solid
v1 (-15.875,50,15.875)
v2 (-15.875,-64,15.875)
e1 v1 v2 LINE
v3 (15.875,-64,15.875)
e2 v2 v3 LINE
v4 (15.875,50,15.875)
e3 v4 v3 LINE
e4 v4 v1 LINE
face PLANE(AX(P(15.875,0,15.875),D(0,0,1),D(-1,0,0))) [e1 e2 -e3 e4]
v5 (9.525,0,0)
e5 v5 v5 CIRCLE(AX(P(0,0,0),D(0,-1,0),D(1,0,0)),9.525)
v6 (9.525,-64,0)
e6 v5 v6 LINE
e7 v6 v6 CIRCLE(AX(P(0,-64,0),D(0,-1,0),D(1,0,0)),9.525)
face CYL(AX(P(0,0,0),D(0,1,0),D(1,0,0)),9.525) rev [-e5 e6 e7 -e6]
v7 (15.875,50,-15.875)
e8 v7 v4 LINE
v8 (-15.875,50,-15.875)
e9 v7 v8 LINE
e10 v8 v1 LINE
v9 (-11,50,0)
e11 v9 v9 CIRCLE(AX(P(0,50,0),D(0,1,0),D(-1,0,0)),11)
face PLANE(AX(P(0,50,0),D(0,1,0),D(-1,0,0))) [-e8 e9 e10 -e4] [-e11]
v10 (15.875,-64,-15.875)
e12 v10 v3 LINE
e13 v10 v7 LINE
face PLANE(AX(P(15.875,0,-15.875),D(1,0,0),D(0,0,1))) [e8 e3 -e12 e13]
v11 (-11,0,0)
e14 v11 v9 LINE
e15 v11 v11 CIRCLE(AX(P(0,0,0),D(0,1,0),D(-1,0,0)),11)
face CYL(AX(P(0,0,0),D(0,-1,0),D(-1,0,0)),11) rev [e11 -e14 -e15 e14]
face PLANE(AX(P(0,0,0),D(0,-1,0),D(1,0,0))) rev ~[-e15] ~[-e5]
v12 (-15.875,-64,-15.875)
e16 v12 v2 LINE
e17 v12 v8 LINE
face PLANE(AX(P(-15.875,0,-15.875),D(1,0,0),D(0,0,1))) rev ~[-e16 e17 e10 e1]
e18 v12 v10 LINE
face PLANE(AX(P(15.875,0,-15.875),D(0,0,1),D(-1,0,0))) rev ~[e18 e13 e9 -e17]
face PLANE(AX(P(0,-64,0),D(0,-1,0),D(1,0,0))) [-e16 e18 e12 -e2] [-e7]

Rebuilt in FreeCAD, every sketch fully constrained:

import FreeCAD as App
import Part
import Sketcher
from FreeCAD import Vector


def add_polygon(sketch, points):
    """Adds a closed chain of lines whose ends are joined by coincident constraints."""
    first, n = sketch.GeometryCount, len(points)
    for a, b in zip(points, points[1:] + points[:1]):
        sketch.addGeometry(Part.LineSegment(App.Vector(*a, 0), App.Vector(*b, 0)), False)
    for i in range(n):
        sketch.addConstraint(Sketcher.Constraint("Coincident", first + i, 2, first + (i + 1) % n, 1))

doc = App.newDocument("Part")
body = doc.addObject("PartDesign::Body", "Body")

sketch1 = body.newObject("Sketcher::SketchObject", "Sketch")
sketch1.AttachmentSupport = (doc.getObject("XZ_Plane"), [""])
sketch1.MapMode = "FlatFace"
add_polygon(sketch1, [(-15.875, 15.875), (-15.875, -15.875), (15.875, -15.875), (15.875, 15.875)])
sketch1.addGeometry(Part.Circle(Vector(0, 0, 0), Vector(0, 0, 1), 9.525), False)
sketch1.addConstraint([
    Sketcher.Constraint("Vertical", 0),
    Sketcher.Constraint("Horizontal", 1),
    Sketcher.Constraint("Vertical", 2),
    Sketcher.Constraint("Horizontal", 3),
    Sketcher.Constraint("Coincident", 4, 3, -1, 1),
    Sketcher.Constraint("Symmetric", 0, 2, 2, 2, -1, 1),
    Sketcher.Constraint("Equal", 3, 0),
    Sketcher.Constraint("Diameter", 4, 19.05),
    Sketcher.Constraint("DistanceX", 1, 1, 1, 2, 31.75),
])
pad1 = body.newObject("PartDesign::Pad", "Pad")
pad1.Profile = sketch1
pad1.Length = 64

sketch2 = body.newObject("Sketcher::SketchObject", "Sketch001")
sketch2.AttachmentSupport = (doc.getObject("XZ_Plane"), [""])
sketch2.MapMode = "FlatFace"
add_polygon(sketch2, [(15.875, 15.875), (15.875, -15.875), (-15.875, -15.875), (-15.875, 15.875)])
sketch2.addGeometry(Part.Circle(Vector(0, 0, 0), Vector(0, 0, 1), 11), False)
sketch2.addConstraint([
    Sketcher.Constraint("Vertical", 0),
    Sketcher.Constraint("Horizontal", 1),
    Sketcher.Constraint("Vertical", 2),
    Sketcher.Constraint("Horizontal", 3),
    Sketcher.Constraint("Coincident", 4, 3, -1, 1),
    Sketcher.Constraint("Symmetric", 0, 2, 2, 2, -1, 1),
    Sketcher.Constraint("Equal", 3, 0),
    Sketcher.Constraint("Diameter", 4, 22.0),
    Sketcher.Constraint("DistanceX", 1, 2, 1, 1, 31.75),
])
pad2 = body.newObject("PartDesign::Pad", "Pad001")
pad2.Profile = sketch2
pad2.Length = 50
pad2.Reversed = True

doc.recompute()
